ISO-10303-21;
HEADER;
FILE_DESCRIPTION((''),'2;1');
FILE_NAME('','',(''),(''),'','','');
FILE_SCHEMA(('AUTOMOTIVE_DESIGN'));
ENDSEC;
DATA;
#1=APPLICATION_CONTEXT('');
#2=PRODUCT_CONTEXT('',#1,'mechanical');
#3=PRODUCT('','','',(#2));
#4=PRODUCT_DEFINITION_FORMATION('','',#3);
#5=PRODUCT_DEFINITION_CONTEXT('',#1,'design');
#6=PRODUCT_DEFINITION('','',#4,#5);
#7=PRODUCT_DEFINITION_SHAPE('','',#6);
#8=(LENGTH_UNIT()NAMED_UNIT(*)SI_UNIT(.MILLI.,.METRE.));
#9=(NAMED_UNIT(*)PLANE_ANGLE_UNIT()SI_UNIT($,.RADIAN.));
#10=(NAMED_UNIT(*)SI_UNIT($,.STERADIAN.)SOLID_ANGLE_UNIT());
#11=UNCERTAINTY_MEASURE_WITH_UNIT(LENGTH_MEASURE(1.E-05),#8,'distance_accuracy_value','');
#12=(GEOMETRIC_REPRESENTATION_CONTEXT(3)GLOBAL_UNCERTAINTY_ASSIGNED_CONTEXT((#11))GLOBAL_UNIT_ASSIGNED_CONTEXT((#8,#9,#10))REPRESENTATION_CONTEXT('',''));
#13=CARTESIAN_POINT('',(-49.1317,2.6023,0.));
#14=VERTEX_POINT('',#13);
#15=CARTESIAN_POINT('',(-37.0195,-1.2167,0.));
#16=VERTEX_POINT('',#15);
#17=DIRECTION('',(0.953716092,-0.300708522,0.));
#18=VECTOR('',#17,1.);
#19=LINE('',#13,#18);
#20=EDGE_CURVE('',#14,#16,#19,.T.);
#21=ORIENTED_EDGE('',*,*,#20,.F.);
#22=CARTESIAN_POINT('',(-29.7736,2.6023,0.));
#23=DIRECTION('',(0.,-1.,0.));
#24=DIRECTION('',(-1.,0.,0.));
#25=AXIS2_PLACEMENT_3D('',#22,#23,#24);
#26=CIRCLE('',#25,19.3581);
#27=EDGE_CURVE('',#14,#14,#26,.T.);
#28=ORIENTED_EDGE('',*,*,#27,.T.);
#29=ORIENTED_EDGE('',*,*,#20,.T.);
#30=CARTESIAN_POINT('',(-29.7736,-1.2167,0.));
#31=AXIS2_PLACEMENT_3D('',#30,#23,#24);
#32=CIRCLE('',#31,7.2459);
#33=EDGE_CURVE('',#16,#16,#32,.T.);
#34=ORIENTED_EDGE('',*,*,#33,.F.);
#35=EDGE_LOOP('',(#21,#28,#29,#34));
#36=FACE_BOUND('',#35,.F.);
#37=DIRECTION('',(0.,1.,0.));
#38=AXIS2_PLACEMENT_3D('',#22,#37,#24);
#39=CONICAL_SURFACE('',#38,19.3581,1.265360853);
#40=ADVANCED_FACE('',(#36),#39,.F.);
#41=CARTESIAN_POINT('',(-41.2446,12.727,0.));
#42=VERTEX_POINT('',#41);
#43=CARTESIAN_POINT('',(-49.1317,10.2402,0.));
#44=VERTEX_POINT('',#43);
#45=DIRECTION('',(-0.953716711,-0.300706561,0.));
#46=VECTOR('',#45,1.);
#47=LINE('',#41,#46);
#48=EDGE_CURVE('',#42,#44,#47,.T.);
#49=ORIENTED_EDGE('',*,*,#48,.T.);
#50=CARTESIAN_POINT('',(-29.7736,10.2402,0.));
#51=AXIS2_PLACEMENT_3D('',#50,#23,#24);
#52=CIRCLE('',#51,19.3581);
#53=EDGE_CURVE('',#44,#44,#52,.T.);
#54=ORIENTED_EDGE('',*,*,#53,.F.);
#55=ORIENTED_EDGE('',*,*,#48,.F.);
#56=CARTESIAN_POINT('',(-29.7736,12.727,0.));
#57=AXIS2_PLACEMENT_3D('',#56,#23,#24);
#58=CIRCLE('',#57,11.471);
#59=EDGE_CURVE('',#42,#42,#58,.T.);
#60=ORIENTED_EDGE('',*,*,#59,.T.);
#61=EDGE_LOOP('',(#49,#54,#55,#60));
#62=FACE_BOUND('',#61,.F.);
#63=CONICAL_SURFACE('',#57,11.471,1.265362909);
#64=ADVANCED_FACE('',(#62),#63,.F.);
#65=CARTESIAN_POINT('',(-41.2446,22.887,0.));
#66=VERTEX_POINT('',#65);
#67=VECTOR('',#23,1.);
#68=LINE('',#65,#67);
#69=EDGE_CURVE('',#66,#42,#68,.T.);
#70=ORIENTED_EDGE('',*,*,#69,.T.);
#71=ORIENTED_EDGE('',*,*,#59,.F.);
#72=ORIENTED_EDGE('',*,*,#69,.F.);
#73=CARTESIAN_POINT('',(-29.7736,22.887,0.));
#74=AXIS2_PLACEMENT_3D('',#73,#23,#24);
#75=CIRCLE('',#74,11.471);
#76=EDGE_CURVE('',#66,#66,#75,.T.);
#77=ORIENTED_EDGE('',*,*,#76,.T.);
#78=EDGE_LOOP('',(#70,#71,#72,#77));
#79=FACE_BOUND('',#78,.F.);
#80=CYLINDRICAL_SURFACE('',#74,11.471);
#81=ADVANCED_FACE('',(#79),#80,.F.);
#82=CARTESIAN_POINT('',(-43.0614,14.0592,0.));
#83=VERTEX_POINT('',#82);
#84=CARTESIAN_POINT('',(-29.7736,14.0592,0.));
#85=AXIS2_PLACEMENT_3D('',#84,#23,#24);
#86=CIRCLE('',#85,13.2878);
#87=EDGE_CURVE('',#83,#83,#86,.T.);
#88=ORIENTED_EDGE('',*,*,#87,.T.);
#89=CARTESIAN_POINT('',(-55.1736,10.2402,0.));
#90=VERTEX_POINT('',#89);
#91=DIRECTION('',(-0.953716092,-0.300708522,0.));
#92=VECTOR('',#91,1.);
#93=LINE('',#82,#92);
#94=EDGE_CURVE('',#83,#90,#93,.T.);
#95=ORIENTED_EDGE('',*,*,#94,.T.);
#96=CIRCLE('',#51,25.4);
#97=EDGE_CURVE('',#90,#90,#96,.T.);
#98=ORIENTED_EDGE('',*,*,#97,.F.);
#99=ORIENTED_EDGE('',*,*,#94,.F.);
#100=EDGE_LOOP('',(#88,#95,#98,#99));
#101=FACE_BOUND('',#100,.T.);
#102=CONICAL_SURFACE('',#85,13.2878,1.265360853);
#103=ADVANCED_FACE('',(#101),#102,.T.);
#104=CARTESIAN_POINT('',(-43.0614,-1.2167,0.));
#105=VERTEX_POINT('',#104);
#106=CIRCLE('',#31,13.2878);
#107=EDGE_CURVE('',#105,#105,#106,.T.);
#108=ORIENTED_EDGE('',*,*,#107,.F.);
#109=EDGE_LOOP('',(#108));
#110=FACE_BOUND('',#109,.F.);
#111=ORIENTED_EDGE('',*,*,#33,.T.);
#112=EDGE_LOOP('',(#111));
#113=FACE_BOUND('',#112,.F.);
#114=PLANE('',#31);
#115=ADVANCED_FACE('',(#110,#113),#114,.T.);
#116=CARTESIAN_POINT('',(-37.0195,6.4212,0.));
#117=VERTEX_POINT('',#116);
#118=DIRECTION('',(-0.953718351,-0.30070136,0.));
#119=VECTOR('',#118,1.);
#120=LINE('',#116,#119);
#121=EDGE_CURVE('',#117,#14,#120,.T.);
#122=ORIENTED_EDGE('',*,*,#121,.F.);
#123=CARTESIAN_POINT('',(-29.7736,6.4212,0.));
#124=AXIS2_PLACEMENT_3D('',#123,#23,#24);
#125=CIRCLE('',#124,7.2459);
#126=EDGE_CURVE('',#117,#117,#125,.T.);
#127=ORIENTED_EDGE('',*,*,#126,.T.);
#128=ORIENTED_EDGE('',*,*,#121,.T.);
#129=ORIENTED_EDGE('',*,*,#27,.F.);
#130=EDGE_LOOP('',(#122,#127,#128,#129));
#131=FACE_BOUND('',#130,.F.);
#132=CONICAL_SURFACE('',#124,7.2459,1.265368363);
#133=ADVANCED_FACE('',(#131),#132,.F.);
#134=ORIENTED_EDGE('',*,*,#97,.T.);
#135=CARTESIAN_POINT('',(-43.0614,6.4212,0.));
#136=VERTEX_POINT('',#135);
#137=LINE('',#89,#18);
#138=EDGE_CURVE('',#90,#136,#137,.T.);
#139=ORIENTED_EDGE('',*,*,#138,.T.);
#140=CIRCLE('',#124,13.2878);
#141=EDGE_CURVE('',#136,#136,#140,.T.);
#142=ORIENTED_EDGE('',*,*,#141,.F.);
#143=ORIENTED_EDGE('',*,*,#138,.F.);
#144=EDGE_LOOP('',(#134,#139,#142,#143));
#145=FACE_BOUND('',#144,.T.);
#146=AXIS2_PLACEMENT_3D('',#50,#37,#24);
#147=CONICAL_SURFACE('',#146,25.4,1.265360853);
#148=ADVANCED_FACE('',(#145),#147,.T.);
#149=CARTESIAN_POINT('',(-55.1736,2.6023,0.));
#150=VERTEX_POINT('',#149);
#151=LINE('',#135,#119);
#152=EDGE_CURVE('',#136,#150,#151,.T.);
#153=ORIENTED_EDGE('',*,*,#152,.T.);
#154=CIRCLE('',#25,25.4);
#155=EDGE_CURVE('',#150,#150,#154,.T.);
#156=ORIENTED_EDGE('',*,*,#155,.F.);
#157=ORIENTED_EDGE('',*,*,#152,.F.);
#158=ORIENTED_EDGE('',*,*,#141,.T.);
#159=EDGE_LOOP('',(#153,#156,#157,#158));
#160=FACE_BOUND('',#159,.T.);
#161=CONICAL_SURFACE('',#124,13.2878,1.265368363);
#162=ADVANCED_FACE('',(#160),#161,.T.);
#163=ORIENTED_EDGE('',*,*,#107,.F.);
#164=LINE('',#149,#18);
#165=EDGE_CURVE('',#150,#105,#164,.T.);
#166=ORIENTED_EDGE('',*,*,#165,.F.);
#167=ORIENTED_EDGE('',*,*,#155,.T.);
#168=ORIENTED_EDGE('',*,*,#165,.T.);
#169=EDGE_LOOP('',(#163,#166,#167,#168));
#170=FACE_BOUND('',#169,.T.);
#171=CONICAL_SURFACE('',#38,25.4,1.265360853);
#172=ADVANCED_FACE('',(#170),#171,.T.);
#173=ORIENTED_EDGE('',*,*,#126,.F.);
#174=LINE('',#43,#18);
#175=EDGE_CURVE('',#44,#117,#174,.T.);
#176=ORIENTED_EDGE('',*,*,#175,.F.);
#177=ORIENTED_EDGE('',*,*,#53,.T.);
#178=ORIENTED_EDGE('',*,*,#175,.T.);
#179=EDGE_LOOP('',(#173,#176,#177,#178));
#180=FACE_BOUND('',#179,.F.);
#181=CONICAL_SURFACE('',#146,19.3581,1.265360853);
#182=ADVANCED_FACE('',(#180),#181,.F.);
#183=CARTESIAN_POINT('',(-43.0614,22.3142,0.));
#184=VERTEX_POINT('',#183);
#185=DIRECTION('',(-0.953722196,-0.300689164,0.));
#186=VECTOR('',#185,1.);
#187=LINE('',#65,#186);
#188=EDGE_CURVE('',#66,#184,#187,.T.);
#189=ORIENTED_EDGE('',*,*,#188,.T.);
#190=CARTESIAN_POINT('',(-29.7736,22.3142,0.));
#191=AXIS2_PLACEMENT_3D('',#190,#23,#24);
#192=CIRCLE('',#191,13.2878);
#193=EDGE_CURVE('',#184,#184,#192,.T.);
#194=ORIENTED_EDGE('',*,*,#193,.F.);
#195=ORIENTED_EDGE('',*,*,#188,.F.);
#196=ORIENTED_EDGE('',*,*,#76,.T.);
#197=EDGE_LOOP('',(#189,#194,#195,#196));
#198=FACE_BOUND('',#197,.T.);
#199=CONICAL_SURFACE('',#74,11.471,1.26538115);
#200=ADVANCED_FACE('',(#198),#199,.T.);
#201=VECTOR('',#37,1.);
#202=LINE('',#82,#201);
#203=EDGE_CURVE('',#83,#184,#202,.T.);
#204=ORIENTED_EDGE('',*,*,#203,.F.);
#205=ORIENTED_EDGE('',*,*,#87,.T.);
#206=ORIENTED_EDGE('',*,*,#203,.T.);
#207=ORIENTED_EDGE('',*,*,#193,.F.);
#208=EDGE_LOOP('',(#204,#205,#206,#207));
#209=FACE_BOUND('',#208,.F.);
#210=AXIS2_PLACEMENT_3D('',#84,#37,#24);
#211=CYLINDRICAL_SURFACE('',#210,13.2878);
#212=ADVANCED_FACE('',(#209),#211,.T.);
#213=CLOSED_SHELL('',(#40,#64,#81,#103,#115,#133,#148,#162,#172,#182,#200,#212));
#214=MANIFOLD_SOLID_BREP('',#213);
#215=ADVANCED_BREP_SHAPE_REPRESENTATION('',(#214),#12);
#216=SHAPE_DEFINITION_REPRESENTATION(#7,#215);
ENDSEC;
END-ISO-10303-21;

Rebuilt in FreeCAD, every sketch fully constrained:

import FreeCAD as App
import Part
import Sketcher
Q = App.Units.Quantity


def add_polygon(sketch, points):
    """Adds a closed chain of lines whose ends are joined by coincident constraints."""
    first, n = sketch.GeometryCount, len(points)
    for a, b in zip(points, points[1:] + points[:1]):
        sketch.addGeometry(Part.LineSegment(App.Vector(*a, 0), App.Vector(*b, 0)), False)
    for i in range(n):
        sketch.addConstraint(Sketcher.Constraint("Coincident", first + i, 2, first + (i + 1) % n, 1))

doc = App.newDocument("Part")
body = doc.addObject("PartDesign::Body", "Body")

# Sketch on XY plane
sketch1 = body.newObject("Sketcher::SketchObject", "Sketch")
sketch1.AttachmentSupport = (doc.getObject("XY_Plane"), [""])
sketch1.MapMode = "FlatFace"
add_polygon(sketch1, [(-43.1, 22.3), (-43.1, 14.1), (-55.2, 10.2), (-43.1, 6.4), (-55.2, 2.6), (-43.1, -1.2), (-37, -1.2), (-49.1, 2.6), (-37, 6.4), (-49.1, 10.2), (-41.2, 12.7), (-41.2, 22.9)])  # lines 0-11
sketch1.addGeometry(Part.LineSegment(App.Vector(-29.8, 22.9, 0), App.Vector(-29.8, -1.2, 0)), True)  # axis
sketch1.addConstraint([
    Sketcher.Constraint("Vertical", 0),
    Sketcher.Constraint("Horizontal", 5),
    Sketcher.Constraint("Vertical", 10),
    Sketcher.Constraint("Vertical", 12),
    Sketcher.Constraint("Parallel", 1, 3),
    Sketcher.Constraint("Parallel", 2, 4),
    Sketcher.Constraint("Parallel", 4, 6),
    Sketcher.Constraint("Parallel", 3, 7),
    Sketcher.Constraint("Parallel", 6, 8),
    Sketcher.Constraint("Parallel", 7, 9),
    Sketcher.Constraint("Parallel", 9, 11),
    Sketcher.Constraint("Horizontal", 3, 2, 6, 2),
    Sketcher.Constraint("Horizontal", 2, 2, 7, 2),
    Sketcher.Constraint("Horizontal", 1, 2, 8, 2),
    Sketcher.Constraint("Horizontal", 10, 2, 12, 1),
    Sketcher.Constraint("Horizontal", 5, 2, 12, 2),
    Sketcher.Constraint("Vertical", 0, 2, 2, 2),
    Sketcher.Constraint("Vertical", 1, 2, 3, 2),
    Sketcher.Constraint("Vertical", 2, 2, 4, 2),
    Sketcher.Constraint("Equal", 1, 2),
    Sketcher.Constraint("Distance", 1, Q("0.5 in")),
    Sketcher.Constraint("DistanceY", 0, 2, 0, 1, Q("0.325 in")),
    Sketcher.Constraint("Distance", 11, Q("0.075 in")),
    Sketcher.Constraint("DistanceY", 10, 1, 10, 2, Q("0.4 in")),
    Sketcher.Constraint("Angle", 1, Q("-162.4998 deg")),
    Sketcher.Constraint("DistanceY", -1, 1, 0, 2, Q("0.5535 in")),
    Sketcher.Constraint("DistanceX", 1, 2, -1, 1, Q("2.1722 in")),
    Sketcher.Constraint("DistanceX", 12, 1, -1, 1, Q("1.1722 in")),
])
revolution = body.newObject("PartDesign::Revolution", "Revolution")
revolution.Profile = sketch1
revolution.ReferenceAxis = (sketch1, ["Axis0"])
revolution.Angle = 360

doc.recompute()
